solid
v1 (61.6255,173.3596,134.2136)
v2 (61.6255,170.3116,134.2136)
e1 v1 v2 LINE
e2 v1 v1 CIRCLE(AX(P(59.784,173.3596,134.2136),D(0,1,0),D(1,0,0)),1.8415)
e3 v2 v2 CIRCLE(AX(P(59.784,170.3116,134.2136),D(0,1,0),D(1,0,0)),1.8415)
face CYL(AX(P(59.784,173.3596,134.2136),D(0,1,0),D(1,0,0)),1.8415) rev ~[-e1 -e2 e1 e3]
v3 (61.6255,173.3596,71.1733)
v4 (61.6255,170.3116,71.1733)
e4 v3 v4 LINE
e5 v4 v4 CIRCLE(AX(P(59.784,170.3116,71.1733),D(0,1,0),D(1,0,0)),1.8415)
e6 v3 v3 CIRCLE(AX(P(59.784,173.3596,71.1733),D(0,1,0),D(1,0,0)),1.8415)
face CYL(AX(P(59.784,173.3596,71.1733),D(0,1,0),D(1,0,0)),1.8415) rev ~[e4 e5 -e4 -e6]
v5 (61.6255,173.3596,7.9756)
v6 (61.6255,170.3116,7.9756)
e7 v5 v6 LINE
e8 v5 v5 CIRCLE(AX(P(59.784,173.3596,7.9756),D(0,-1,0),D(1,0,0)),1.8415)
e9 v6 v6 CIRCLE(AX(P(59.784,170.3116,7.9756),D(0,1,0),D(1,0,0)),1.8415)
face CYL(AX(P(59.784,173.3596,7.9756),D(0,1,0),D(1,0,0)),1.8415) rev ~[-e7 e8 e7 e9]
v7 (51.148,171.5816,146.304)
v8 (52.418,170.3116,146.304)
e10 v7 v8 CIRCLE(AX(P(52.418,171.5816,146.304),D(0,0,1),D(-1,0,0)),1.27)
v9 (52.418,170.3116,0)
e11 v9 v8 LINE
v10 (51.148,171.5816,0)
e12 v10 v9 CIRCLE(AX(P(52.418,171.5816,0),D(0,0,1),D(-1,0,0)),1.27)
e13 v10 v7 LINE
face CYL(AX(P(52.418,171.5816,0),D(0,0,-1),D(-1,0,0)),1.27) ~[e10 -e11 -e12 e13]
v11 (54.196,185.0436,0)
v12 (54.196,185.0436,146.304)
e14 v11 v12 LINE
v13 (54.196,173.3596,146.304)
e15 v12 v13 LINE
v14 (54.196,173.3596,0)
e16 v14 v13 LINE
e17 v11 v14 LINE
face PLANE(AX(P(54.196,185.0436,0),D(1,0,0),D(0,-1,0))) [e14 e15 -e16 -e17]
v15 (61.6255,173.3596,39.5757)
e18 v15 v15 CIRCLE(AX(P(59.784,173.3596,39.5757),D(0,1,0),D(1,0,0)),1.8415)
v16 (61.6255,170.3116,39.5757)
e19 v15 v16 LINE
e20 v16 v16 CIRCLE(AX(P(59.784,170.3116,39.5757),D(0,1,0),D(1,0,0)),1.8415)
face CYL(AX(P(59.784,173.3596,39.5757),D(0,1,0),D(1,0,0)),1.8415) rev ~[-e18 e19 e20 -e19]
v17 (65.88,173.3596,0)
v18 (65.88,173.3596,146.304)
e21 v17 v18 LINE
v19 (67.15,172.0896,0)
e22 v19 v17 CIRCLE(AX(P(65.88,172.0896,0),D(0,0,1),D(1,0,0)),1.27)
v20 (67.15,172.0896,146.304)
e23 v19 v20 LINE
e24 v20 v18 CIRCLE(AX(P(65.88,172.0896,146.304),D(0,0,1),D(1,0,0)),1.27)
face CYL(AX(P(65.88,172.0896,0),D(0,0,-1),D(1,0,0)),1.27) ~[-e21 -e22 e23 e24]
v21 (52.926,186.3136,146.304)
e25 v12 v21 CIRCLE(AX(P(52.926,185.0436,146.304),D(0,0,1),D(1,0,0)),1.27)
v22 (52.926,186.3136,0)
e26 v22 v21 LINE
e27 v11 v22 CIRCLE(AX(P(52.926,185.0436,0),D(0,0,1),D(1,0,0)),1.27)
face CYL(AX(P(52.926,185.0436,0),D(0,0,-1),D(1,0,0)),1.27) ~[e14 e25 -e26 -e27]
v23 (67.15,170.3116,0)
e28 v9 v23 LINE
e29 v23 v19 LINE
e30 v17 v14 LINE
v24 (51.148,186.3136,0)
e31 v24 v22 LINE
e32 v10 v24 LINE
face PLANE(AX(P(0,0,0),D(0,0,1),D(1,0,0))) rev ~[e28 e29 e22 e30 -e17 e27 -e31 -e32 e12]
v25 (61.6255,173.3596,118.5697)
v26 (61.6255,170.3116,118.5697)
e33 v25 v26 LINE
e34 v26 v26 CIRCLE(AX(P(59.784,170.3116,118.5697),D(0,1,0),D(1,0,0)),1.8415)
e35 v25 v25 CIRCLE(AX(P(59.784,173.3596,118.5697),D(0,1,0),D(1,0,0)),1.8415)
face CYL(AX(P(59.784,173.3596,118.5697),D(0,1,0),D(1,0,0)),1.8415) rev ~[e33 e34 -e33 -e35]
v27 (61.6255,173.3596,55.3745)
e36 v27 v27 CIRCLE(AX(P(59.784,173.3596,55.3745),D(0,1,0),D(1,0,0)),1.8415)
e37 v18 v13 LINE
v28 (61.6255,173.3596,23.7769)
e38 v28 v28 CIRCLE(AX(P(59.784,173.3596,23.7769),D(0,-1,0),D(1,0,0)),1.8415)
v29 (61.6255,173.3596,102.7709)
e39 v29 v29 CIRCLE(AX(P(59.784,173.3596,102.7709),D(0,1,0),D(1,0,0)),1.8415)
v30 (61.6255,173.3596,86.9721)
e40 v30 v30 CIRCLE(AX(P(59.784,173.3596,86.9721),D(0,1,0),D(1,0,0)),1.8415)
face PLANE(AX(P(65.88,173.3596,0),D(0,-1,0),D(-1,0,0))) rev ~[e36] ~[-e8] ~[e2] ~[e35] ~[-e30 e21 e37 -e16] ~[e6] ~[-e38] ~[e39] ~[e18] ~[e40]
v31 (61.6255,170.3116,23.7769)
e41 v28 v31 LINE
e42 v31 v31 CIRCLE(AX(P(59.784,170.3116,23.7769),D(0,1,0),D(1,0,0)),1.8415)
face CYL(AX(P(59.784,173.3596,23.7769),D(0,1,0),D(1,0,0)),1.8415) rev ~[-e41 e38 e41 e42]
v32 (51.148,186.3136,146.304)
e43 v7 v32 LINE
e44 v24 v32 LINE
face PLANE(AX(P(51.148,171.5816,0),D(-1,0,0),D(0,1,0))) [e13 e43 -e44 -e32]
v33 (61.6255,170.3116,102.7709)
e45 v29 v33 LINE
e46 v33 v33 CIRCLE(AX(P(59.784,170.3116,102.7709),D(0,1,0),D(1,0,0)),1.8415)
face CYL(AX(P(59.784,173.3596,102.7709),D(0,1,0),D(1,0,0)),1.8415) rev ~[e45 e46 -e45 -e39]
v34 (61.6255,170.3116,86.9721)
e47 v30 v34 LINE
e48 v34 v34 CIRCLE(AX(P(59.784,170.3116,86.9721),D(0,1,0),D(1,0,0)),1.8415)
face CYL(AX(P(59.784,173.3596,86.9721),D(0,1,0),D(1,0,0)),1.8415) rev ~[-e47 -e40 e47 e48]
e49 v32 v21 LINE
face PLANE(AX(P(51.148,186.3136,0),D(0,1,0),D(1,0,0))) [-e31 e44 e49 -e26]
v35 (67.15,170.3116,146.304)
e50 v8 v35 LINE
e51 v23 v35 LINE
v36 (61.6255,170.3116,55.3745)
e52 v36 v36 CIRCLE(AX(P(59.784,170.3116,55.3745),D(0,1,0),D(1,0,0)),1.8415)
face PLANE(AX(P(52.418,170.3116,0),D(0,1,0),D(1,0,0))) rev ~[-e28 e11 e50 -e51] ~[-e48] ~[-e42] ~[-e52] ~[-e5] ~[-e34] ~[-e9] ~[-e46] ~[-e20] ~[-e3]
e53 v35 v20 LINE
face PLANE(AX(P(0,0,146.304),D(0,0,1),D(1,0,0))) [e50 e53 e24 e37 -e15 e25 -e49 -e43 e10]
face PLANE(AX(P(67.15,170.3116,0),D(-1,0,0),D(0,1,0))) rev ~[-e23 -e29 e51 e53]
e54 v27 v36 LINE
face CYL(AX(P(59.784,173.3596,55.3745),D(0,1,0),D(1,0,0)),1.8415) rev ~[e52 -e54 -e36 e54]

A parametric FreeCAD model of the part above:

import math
import FreeCAD as App
import Part
import Sketcher
from FreeCAD import Vector
Q = App.Units.Quantity

doc = App.newDocument("Part")
body = doc.addObject("PartDesign::Body", "Body")

sketch1 = body.newObject("Sketcher::SketchObject", "Sketch")
sketch1.AttachmentSupport = (doc.getObject("XY_Plane"), [""])
sketch1.MapMode = "FlatFace"
sketch1.addGeometry([
    Part.ArcOfCircle(Part.Circle(Vector(52.4, 171.6, 0), Vector(0, 0, 1), 1.3), math.radians(180), math.radians(270)),
    Part.LineSegment(Vector(52.4, 170.3, 0), Vector(67.2, 170.3, 0)),
    Part.LineSegment(Vector(67.2, 170.3, 0), Vector(67.2, 172.1, 0)),
    Part.ArcOfCircle(Part.Circle(Vector(65.9, 172.1, 0), Vector(0, 0, 1), 1.3), math.radians(0), math.radians(90)),
    Part.LineSegment(Vector(65.9, 173.4, 0), Vector(54.2, 173.4, 0)),
    Part.LineSegment(Vector(54.2, 173.4, 0), Vector(54.2, 185, 0)),
    Part.ArcOfCircle(Part.Circle(Vector(52.9, 185, 0), Vector(0, 0, 1), 1.3), math.radians(0), math.radians(90)),
    Part.LineSegment(Vector(52.9, 186.3, 0), Vector(51.1, 186.3, 0)),
    Part.LineSegment(Vector(51.1, 186.3, 0), Vector(51.1, 171.6, 0)),
], False)
sketch1.addConstraint([
    Sketcher.Constraint("Tangent", 0, 2, 1, 1),
    Sketcher.Constraint("Coincident", 1, 2, 2, 1),
    Sketcher.Constraint("Tangent", 2, 2, 3, 1),
    Sketcher.Constraint("Tangent", 3, 2, 4, 1),
    Sketcher.Constraint("Coincident", 4, 2, 5, 1),
    Sketcher.Constraint("Tangent", 5, 2, 6, 1),
    Sketcher.Constraint("Tangent", 6, 2, 7, 1),
    Sketcher.Constraint("Coincident", 7, 2, 8, 1),
    Sketcher.Constraint("Tangent", 8, 2, 0, 1),
    Sketcher.Constraint("Horizontal", 1),
    Sketcher.Constraint("Vertical", 2),
    Sketcher.Constraint("Horizontal", 4),
    Sketcher.Constraint("Vertical", 5),
    Sketcher.Constraint("Horizontal", 7),
    Sketcher.Constraint("Vertical", 8),
    Sketcher.Constraint("Equal", 0, 3),
    Sketcher.Constraint("Equal", 3, 6),
    Sketcher.Constraint("Equal", 7, 2),
    Sketcher.Constraint("Equal", 4, 5),
    Sketcher.Constraint("Radius", 0, Q("0.05 in")),
    Sketcher.Constraint("DistanceY", 1, 2, 3, 2, Q("0.12 in")),
    Sketcher.Constraint("DistanceY", 0, 2, 6, 2, Q("0.63 in")),
    Sketcher.Constraint("DistanceX", -1, 1, 0, 3, Q("2.0637 in")),
    Sketcher.Constraint("DistanceY", -1, 1, 0, 3, Q("171.5816 mm")),
])
pad1 = body.newObject("PartDesign::Pad", "Pad")
pad1.Profile = sketch1
pad1.Length = Q("5.76 in")

sketch2 = body.newObject("Sketcher::SketchObject", "Sketch001")
sketch2.AttachmentSupport = (doc.getObject("XZ_Plane"), [""])
sketch2.MapMode = "FlatFace"
sketch2.AttachmentOffset = App.Placement(Vector(0, 0, -173.3596), App.Rotation())
sketch2.addGeometry([
    Part.Circle(Vector(59.8, 8, 0), Vector(0, 0, 1), 1.8),
    Part.Circle(Vector(59.8, 134.2, 0), Vector(0, 0, 1), 1.8),
], False)
sketch2.addConstraint([
    Sketcher.Constraint("Equal", 0, 1),
    Sketcher.Constraint("Vertical", 0, 3, 1, 3),
    Sketcher.Constraint("Diameter", 0, Q("0.145 in")),
    Sketcher.Constraint("DistanceY", 0, 3, 1, 3, Q("4.97 in")),
    Sketcher.Constraint("DistanceY", -1, 1, 0, 3, Q("0.314 in")),
    Sketcher.Constraint("DistanceX", -1, 1, 0, 3, Q("2.3537 in")),
])
pocket1 = body.newObject("PartDesign::Pocket", "Pocket")
pocket1.Profile = sketch2
pocket1.Length = Q("2.75 in")
pocket1.Reversed = True

sketch3 = body.newObject("Sketcher::SketchObject", "Sketch002")
sketch3.AttachmentSupport = (doc.getObject("XZ_Plane"), [""])
sketch3.MapMode = "FlatFace"
sketch3.AttachmentOffset = App.Placement(Vector(0, 0, -173.3596), App.Rotation())
sketch3.addGeometry([
    Part.Circle(Vector(59.8, 23.8, 0), Vector(0, 0, 1), 1.8),
    Part.Circle(Vector(59.8, 39.6, 0), Vector(0, 0, 1), 1.8),
    Part.Circle(Vector(59.8, 55.4, 0), Vector(0, 0, 1), 1.8),
    Part.Circle(Vector(59.8, 71.2, 0), Vector(0, 0, 1), 1.8),
    Part.Circle(Vector(59.8, 87, 0), Vector(0, 0, 1), 1.8),
    Part.Circle(Vector(59.8, 102.8, 0), Vector(0, 0, 1), 1.8),
    Part.Circle(Vector(59.8, 118.6, 0), Vector(0, 0, 1), 1.8),
], False)
sketch3.addConstraint([
    Sketcher.Constraint("Equal", 0, 1),
    Sketcher.Constraint("Equal", 1, 2),
    Sketcher.Constraint("Equal", 2, 3),
    Sketcher.Constraint("Equal", 3, 4),
    Sketcher.Constraint("Equal", 4, 5),
    Sketcher.Constraint("Equal", 5, 6),
    Sketcher.Constraint("Vertical", 0, 3, 1, 3),
    Sketcher.Constraint("Vertical", 1, 3, 2, 3),
    Sketcher.Constraint("Vertical", 2, 3, 3, 3),
    Sketcher.Constraint("Vertical", 3, 3, 4, 3),
    Sketcher.Constraint("Vertical", 4, 3, 5, 3),
    Sketcher.Constraint("Vertical", 5, 3, 6, 3),
    Sketcher.Constraint("Diameter", 0, Q("0.145 in")),
    Sketcher.Constraint("DistanceY", 0, 3, 5, 3, Q("3.11 in")),
    Sketcher.Constraint("DistanceY", 1, 3, 6, 3, Q("3.11 in")),
    Sketcher.Constraint("DistanceY", 0, 3, 1, 3, Q("0.622 in")),
    Sketcher.Constraint("DistanceY", 1, 3, 2, 3, Q("0.622 in")),
    Sketcher.Constraint("DistanceY", 2, 3, 3, 3, Q("0.622 in")),
    Sketcher.Constraint("DistanceY", 3, 3, 4, 3, Q("0.622 in")),
    Sketcher.Constraint("DistanceX", -1, 1, 0, 3, Q("2.3537 in")),
    Sketcher.Constraint("DistanceY", -1, 1, 0, 3, Q("0.9361 in")),
])
pocket2 = body.newObject("PartDesign::Pocket", "Pocket001")
pocket2.Profile = sketch3
pocket2.Length = Q("1.375 in")
pocket2.Reversed = True

doc.recompute()
